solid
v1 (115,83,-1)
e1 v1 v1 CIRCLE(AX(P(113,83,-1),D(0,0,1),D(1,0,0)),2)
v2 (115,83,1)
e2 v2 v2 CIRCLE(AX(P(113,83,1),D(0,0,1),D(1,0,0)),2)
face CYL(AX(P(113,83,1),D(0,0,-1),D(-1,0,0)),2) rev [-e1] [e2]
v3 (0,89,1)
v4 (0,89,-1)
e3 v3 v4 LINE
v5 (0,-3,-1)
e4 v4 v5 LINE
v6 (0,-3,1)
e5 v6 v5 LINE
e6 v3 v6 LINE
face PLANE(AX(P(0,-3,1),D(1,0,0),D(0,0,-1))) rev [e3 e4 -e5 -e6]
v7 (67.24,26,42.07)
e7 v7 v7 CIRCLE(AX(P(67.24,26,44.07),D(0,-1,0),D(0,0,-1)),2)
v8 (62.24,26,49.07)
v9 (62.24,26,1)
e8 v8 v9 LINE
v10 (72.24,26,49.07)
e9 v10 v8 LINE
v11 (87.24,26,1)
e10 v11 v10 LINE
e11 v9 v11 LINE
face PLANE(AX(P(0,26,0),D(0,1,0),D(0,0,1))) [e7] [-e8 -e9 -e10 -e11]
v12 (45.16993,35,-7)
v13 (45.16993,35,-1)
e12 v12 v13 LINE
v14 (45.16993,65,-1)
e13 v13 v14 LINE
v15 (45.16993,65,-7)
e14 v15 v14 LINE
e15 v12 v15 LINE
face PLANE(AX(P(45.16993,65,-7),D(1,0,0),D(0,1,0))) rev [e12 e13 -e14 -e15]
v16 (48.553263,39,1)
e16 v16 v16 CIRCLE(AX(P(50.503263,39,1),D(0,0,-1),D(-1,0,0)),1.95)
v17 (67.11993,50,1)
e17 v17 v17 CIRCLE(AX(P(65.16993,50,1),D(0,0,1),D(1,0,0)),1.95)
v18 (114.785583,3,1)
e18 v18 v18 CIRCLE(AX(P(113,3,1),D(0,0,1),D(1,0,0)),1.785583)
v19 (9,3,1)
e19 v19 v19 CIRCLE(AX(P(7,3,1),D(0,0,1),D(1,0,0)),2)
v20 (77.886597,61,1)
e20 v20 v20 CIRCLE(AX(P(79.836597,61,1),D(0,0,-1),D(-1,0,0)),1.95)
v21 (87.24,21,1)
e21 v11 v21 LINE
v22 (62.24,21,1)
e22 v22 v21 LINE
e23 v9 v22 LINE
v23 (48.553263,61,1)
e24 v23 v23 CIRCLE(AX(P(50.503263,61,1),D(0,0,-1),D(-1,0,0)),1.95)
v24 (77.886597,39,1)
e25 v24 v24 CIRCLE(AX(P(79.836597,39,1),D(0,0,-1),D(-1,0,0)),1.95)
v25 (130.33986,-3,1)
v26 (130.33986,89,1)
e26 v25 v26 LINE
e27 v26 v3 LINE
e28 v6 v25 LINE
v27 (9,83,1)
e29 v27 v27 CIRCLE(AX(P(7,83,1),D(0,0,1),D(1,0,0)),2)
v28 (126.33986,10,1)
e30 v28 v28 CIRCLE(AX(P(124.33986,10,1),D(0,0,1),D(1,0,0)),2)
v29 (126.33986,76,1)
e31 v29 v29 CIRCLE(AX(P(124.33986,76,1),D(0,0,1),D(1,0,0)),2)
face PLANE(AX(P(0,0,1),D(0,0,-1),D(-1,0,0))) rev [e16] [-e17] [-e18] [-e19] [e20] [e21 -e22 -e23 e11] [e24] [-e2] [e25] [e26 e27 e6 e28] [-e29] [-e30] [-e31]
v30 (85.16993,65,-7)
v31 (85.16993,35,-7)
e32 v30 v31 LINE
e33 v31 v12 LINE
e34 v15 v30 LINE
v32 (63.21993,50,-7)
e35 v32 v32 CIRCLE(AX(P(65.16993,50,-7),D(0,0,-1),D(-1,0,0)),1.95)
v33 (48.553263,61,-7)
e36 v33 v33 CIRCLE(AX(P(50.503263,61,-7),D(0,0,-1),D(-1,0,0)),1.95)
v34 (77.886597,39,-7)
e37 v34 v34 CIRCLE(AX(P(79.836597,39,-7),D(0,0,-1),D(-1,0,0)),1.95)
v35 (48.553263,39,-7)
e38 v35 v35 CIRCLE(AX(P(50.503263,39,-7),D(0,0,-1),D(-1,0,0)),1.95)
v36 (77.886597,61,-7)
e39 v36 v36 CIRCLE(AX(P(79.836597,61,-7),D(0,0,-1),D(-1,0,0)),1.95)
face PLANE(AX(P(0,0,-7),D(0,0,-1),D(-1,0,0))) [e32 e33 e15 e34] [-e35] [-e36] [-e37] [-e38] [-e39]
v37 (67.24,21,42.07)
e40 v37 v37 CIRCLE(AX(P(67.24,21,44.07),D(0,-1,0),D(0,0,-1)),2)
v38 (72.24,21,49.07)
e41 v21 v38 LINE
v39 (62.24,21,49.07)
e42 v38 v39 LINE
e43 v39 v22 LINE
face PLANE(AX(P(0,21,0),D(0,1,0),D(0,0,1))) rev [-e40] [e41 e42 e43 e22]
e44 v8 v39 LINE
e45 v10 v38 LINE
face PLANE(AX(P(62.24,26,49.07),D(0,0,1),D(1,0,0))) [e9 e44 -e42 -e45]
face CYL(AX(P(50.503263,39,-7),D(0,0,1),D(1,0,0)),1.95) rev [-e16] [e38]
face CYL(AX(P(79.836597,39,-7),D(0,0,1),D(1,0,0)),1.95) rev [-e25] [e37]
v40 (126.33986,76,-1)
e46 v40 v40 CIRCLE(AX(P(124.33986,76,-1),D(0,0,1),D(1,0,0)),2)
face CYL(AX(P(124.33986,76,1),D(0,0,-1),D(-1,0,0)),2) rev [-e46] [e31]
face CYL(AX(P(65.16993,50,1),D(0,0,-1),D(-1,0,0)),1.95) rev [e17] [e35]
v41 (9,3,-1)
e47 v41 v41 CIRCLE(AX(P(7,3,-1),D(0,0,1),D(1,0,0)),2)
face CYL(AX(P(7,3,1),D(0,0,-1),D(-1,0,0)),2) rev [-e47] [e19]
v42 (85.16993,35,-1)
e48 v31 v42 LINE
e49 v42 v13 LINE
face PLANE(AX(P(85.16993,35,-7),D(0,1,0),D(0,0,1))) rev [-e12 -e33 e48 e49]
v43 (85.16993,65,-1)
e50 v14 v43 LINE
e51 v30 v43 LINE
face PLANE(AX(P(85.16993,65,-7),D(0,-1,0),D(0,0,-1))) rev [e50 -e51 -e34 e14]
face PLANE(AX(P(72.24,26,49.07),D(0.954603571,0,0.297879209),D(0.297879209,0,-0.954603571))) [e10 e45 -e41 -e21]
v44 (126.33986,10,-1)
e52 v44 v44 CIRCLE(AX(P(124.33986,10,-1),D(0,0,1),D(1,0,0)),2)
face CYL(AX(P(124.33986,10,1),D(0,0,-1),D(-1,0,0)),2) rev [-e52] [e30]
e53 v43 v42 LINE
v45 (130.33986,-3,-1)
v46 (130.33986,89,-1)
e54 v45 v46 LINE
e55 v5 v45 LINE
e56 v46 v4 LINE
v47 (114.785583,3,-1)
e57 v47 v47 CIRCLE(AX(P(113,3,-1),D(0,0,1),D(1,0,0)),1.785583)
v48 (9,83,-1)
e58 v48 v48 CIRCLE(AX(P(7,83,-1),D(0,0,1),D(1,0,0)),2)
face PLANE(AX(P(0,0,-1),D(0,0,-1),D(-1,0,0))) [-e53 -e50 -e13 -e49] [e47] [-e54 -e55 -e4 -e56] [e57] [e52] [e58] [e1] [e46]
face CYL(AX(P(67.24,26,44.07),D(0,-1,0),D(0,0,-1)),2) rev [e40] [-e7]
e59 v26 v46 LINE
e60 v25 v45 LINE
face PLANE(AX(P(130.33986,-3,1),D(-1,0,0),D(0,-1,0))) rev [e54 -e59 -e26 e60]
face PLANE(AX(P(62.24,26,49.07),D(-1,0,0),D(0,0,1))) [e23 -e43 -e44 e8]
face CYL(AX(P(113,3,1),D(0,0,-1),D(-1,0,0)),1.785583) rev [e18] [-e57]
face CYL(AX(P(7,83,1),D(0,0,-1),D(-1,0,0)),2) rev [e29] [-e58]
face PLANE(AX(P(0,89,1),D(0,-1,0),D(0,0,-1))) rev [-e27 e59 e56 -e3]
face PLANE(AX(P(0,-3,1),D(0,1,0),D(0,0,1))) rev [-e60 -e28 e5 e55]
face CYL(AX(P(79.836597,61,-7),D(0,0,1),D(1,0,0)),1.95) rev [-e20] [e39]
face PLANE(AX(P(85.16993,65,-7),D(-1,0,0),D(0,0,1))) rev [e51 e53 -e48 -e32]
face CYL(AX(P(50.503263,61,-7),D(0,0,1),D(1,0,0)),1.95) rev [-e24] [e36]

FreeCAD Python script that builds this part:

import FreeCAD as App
import Part
import Sketcher

V = App.Vector
Q = App.Units.Quantity

doc = App.newDocument("Part")
params = doc.addObject("Spreadsheet::Sheet", "Params")
for row, (alias, value) in enumerate([
    ("sketch1_diameter", "4 mm"),
    ("sketch1_diameter2", "3.9 mm"),
    ("sketch1_height", "92 mm"),
    ("pad1_length", "2 mm"),
    ("sketch2_diameter", "4 mm"),
    ("sketch2_width", "10 mm"),
    ("sketch2_width2", "25 mm"),
    ("sketch2_height", "48.07 mm"),
    ("pad2_length", "5 mm"),
    ("sketch3_diameter", "3.9 mm"),
    ("sketch3_width", "40 mm"),
    ("sketch3_height", "30 mm"),
    ("pad3_length", "6 mm"),
    ("sketch4_diameter", "3.9 mm"),
    ("pocket1_length", "6 mm"),
], start=1):
    params.set(f"A{row}", alias)
    params.set(f"B{row}", "=" + value)
    params.setAlias(f"B{row}", alias)

body = doc.addObject("PartDesign::Body", "Body")

# Sketch on XY plane
sketch1 = doc.addObject("Sketcher::SketchObject", "Sketch")
body.addObject(sketch1)
sketch1.AttachmentSupport = (doc.XY_Plane, [""])
sketch1.MapMode = "FlatFace"
sketch1.addGeometry([
    Part.LineSegment(V(0, 89, 0), V(0, -3, 0)),  # 0
    Part.LineSegment(V(0, -3, 0), V(130.33986, -3, 0)),  # 1
    Part.LineSegment(V(130.33986, -3, 0), V(130.33986, 89, 0)),  # 2
    Part.LineSegment(V(130.33986, 89, 0), V(0, 89, 0)),  # 3
    Part.Circle(V(7, 3, 0), V(0, 0, 1), 2),  # 4
    Part.Circle(V(113, 3, 0), V(0, 0, 1), 1.785583),  # 5
    Part.Circle(V(124.33986, 10, 0), V(0, 0, 1), 2),  # 6
    Part.Circle(V(65.16993, 50, 0), V(0, 0, 1), 1.95),  # 7
    Part.Circle(V(7, 83, 0), V(0, 0, 1), 2),  # 8
    Part.Circle(V(124.33986, 76, 0), V(0, 0, 1), 2),  # 9
    Part.Circle(V(113, 83, 0), V(0, 0, 1), 2),  # 10
], False)
sketch1.addConstraint([
    Sketcher.Constraint("Coincident", 0, 2, 1, 1),
    Sketcher.Constraint("Coincident", 1, 2, 2, 1),
    Sketcher.Constraint("Coincident", 2, 2, 3, 1),
    Sketcher.Constraint("Coincident", 3, 2, 0, 1),
    Sketcher.Constraint("Vertical", 0),
    Sketcher.Constraint("Horizontal", 1),
    Sketcher.Constraint("Vertical", 2),
    Sketcher.Constraint("Horizontal", 3),
    Sketcher.Constraint("Equal", 4, 6),
    Sketcher.Constraint("Equal", 6, 8),
    Sketcher.Constraint("Equal", 8, 9),
    Sketcher.Constraint("Equal", 9, 10),
    Sketcher.Constraint("PointOnObject", 0, 2, -2),
    Sketcher.Constraint("Horizontal", 4, 3, 5, 3),
    Sketcher.Constraint("Horizontal", 8, 3, 10, 3),
    Sketcher.Constraint("Vertical", 4, 3, 8, 3),
    Sketcher.Constraint("Vertical", 6, 3, 9, 3),
    Sketcher.Constraint("Vertical", 5, 3, 10, 3),
    Sketcher.Constraint("Diameter", 4, Q("4 mm")),
    Sketcher.Constraint("Diameter", 7, Q("3.9 mm")),
    Sketcher.Constraint("DistanceY", 0, 2, 0, 1, Q("92 mm")),
    Sketcher.Constraint("DistanceX", -1, 1, 4, 3, Q("7 mm")),
    Sketcher.Constraint("DistanceY", -1, 1, 4, 3, Q("3 mm")),
    Sketcher.Constraint("DistanceX", -1, 1, 5, 3, Q("113 mm")),
    Sketcher.Constraint("DistanceY", -1, 1, 6, 3, Q("10 mm")),
    Sketcher.Constraint("DistanceY", -1, 1, 7, 3, Q("50 mm")),
    Sketcher.Constraint("DistanceY", -1, 1, 8, 3, Q("83 mm")),
    Sketcher.Constraint("DistanceY", -1, 1, 9, 3, Q("76 mm")),
    Sketcher.Constraint("DistanceY", 0, 2, -1, 1, Q("3 mm")),
    Sketcher.Constraint("DistanceX", 6, 3, 1, 2, Q("6 mm")),
    Sketcher.Constraint("Diameter", 5, Q("3.571165 mm")),
    Sketcher.Constraint("DistanceX", 1, 1, 1, 2, Q("130.33986 mm")),
    Sketcher.Constraint("DistanceX", -1, 1, 7, 3, Q("65.16993 mm")),
])
sketch1.setExpression("Constraints[18]", "Params.sketch1_diameter")
sketch1.setExpression("Constraints[19]", "Params.sketch1_diameter2")
sketch1.setExpression("Constraints[20]", "Params.sketch1_height")
pad1 = doc.addObject("PartDesign::Pad", "Pad")
body.addObject(pad1)
pad1.Profile = sketch1
pad1.setExpression("Length", "Params.pad1_length")
pad1.Midplane = True

# Sketch on XZ plane
sketch2 = doc.addObject("Sketcher::SketchObject", "Sketch001")
body.addObject(sketch2)
sketch2.AttachmentSupport = (doc.XZ_Plane, [""])
sketch2.MapMode = "FlatFace"
sketch2.AttachmentOffset = App.Placement(V(0, 0, -21), App.Rotation())
sketch2.addGeometry([
    Part.LineSegment(V(72.24, 49.07, 0), V(62.24, 49.07, 0)),  # 0
    Part.LineSegment(V(62.24, 49.07, 0), V(62.24, 1, 0)),  # 1
    Part.LineSegment(V(62.24, 1, 0), V(87.24, 1, 0)),  # 2
    Part.LineSegment(V(87.24, 1, 0), V(72.24, 49.07, 0)),  # 3
    Part.Circle(V(67.24, 44.07, 0), V(0, 0, 1), 2),  # 4
], False)
sketch2.addConstraint([
    Sketcher.Constraint("Coincident", 0, 2, 1, 1),
    Sketcher.Constraint("Coincident", 1, 2, 2, 1),
    Sketcher.Constraint("Coincident", 2, 2, 3, 1),
    Sketcher.Constraint("Coincident", 3, 2, 0, 1),
    Sketcher.Constraint("Horizontal", 0),
    Sketcher.Constraint("Vertical", 1),
    Sketcher.Constraint("Horizontal", 2),
    Sketcher.Constraint("Diameter", 4, Q("4 mm")),
    Sketcher.Constraint("DistanceX", 0, 2, 0, 1, Q("10 mm")),
    Sketcher.Constraint("DistanceX", 2, 1, 2, 2, Q("25 mm")),
    Sketcher.Constraint("DistanceY", -1, 1, 1, 2, Q("1 mm")),
    Sketcher.Constraint("DistanceX", 0, 2, 4, 3, Q("5 mm")),
    Sketcher.Constraint("DistanceY", 4, 3, 0, 2, Q("5 mm")),
    Sketcher.Constraint("DistanceY", 1, 2, 1, 1, Q("48.07 mm")),
    Sketcher.Constraint("DistanceX", -1, 1, 4, 3, Q("67.24 mm")),
])
sketch2.setExpression("Constraints[7]", "Params.sketch2_diameter")
sketch2.setExpression("Constraints[8]", "Params.sketch2_width")
sketch2.setExpression("Constraints[9]", "Params.sketch2_width2")
sketch2.setExpression("Constraints[13]", "Params.sketch2_height")
pad2 = doc.addObject("PartDesign::Pad", "Pad001")
body.addObject(pad2)
pad2.Profile = sketch2
pad2.setExpression("Length", "Params.pad2_length")
pad2.Reversed = True

# Sketch on XY plane
sketch3 = doc.addObject("Sketcher::SketchObject", "Sketch002")
body.addObject(sketch3)
sketch3.AttachmentSupport = (doc.XY_Plane, [""])
sketch3.MapMode = "FlatFace"
sketch3.AttachmentOffset = App.Placement(V(0, 0, -7), App.Rotation())
sketch3.addGeometry([
    Part.LineSegment(V(85.16993, 65, 0), V(85.16993, 35, 0)),  # 0
    Part.LineSegment(V(85.16993, 35, 0), V(45.16993, 35, 0)),  # 1
    Part.LineSegment(V(45.16993, 35, 0), V(45.16993, 65, 0)),  # 2
    Part.LineSegment(V(45.16993, 65, 0), V(85.16993, 65, 0)),  # 3
    Part.Circle(V(79.836597, 39, 0), V(0, 0, 1), 1.95),  # 4
    Part.Circle(V(50.503263, 39, 0), V(0, 0, 1), 1.95),  # 5
    Part.Circle(V(65.16993, 50, 0), V(0, 0, 1), 1.95),  # 6
    Part.Circle(V(79.836597, 61, 0), V(0, 0, 1), 1.95),  # 7
    Part.Circle(V(50.503263, 61, 0), V(0, 0, 1), 1.95),  # 8
], False)
sketch3.addConstraint([
    Sketcher.Constraint("Coincident", 0, 2, 1, 1),
    Sketcher.Constraint("Coincident", 1, 2, 2, 1),
    Sketcher.Constraint("Coincident", 2, 2, 3, 1),
    Sketcher.Constraint("Coincident", 3, 2, 0, 1),
    Sketcher.Constraint("Vertical", 0),
    Sketcher.Constraint("Horizontal", 1),
    Sketcher.Constraint("Vertical", 2),
    Sketcher.Constraint("Horizontal", 3),
    Sketcher.Constraint("Equal", 4, 5),
    Sketcher.Constraint("Equal", 5, 6),
    Sketcher.Constraint("Equal", 6, 7),
    Sketcher.Constraint("Equal", 7, 8),
    Sketcher.Constraint("Horizontal", 4, 3, 5, 3),
    Sketcher.Constraint("Horizontal", 7, 3, 8, 3),
    Sketcher.Constraint("Vertical", 4, 3, 7, 3),
    Sketcher.Constraint("Vertical", 5, 3, 8, 3),
    Sketcher.Constraint("Diameter", 4, Q("3.9 mm")),
    Sketcher.Constraint("DistanceX", 1, 2, 1, 1, Q("40 mm")),
    Sketcher.Constraint("DistanceY", 0, 2, 0, 1, Q("30 mm")),
    Sketcher.Constraint("DistanceY", -1, 1, 4, 3, Q("39 mm")),
    Sketcher.Constraint("DistanceY", -1, 1, 6, 3, Q("50 mm")),
    Sketcher.Constraint("DistanceY", -1, 1, 7, 3, Q("61 mm")),
    Sketcher.Constraint("DistanceY", -1, 1, 0, 2, Q("35 mm")),
    Sketcher.Constraint("DistanceX", 6, 3, 0, 2, Q("20 mm")),
    Sketcher.Constraint("DistanceX", -1, 1, 6, 3, Q("65.16993 mm")),
    Sketcher.Constraint("DistanceX", -1, 1, 4, 3, Q("79.836597 mm")),
    Sketcher.Constraint("DistanceX", -1, 1, 5, 3, Q("50.503263 mm")),
])
sketch3.setExpression("Constraints[16]", "Params.sketch3_diameter")
sketch3.setExpression("Constraints[17]", "Params.sketch3_width")
sketch3.setExpression("Constraints[18]", "Params.sketch3_height")
pad3 = doc.addObject("PartDesign::Pad", "Pad002")
body.addObject(pad3)
pad3.Profile = sketch3
pad3.setExpression("Length", "Params.pad3_length")

# Sketch on XY plane
sketch4 = doc.addObject("Sketcher::SketchObject", "Sketch003")
body.addObject(sketch4)
sketch4.AttachmentSupport = (doc.XY_Plane, [""])
sketch4.MapMode = "FlatFace"
sketch4.AttachmentOffset = App.Placement(V(0, 0, -5), App.Rotation())
sketch4.addGeometry([
    Part.Circle(V(50.503263, 39, 0), V(0, 0, 1), 1.95),
    Part.Circle(V(79.836597, 39, 0), V(0, 0, 1), 1.95),
    Part.Circle(V(79.836597, 61, 0), V(0, 0, 1), 1.95),
    Part.Circle(V(50.503263, 61, 0), V(0, 0, 1), 1.95),
], False)
sketch4.addConstraint([
    Sketcher.Constraint("Equal", 0, 1),
    Sketcher.Constraint("Equal", 1, 2),
    Sketcher.Constraint("Equal", 2, 3),
    Sketcher.Constraint("Horizontal", 0, 3, 1, 3),
    Sketcher.Constraint("Horizontal", 2, 3, 3, 3),
    Sketcher.Constraint("Vertical", 1, 3, 2, 3),
    Sketcher.Constraint("Vertical", 0, 3, 3, 3),
    Sketcher.Constraint("Diameter", 0, Q("3.9 mm")),
    Sketcher.Constraint("DistanceY", -1, 1, 0, 3, Q("39 mm")),
    Sketcher.Constraint("DistanceY", -1, 1, 2, 3, Q("61 mm")),
    Sketcher.Constraint("DistanceX", -1, 1, 0, 3, Q("50.503263 mm")),
    Sketcher.Constraint("DistanceX", -1, 1, 1, 3, Q("79.836597 mm")),
])
sketch4.setExpression("Constraints[7]", "Params.sketch4_diameter")
pocket1 = doc.addObject("PartDesign::Pocket", "Pocket")
body.addObject(pocket1)
pocket1.Profile = sketch4
pocket1.setExpression("Length", "Params.pocket1_length")
pocket1.Reversed = True

doc.recompute()
